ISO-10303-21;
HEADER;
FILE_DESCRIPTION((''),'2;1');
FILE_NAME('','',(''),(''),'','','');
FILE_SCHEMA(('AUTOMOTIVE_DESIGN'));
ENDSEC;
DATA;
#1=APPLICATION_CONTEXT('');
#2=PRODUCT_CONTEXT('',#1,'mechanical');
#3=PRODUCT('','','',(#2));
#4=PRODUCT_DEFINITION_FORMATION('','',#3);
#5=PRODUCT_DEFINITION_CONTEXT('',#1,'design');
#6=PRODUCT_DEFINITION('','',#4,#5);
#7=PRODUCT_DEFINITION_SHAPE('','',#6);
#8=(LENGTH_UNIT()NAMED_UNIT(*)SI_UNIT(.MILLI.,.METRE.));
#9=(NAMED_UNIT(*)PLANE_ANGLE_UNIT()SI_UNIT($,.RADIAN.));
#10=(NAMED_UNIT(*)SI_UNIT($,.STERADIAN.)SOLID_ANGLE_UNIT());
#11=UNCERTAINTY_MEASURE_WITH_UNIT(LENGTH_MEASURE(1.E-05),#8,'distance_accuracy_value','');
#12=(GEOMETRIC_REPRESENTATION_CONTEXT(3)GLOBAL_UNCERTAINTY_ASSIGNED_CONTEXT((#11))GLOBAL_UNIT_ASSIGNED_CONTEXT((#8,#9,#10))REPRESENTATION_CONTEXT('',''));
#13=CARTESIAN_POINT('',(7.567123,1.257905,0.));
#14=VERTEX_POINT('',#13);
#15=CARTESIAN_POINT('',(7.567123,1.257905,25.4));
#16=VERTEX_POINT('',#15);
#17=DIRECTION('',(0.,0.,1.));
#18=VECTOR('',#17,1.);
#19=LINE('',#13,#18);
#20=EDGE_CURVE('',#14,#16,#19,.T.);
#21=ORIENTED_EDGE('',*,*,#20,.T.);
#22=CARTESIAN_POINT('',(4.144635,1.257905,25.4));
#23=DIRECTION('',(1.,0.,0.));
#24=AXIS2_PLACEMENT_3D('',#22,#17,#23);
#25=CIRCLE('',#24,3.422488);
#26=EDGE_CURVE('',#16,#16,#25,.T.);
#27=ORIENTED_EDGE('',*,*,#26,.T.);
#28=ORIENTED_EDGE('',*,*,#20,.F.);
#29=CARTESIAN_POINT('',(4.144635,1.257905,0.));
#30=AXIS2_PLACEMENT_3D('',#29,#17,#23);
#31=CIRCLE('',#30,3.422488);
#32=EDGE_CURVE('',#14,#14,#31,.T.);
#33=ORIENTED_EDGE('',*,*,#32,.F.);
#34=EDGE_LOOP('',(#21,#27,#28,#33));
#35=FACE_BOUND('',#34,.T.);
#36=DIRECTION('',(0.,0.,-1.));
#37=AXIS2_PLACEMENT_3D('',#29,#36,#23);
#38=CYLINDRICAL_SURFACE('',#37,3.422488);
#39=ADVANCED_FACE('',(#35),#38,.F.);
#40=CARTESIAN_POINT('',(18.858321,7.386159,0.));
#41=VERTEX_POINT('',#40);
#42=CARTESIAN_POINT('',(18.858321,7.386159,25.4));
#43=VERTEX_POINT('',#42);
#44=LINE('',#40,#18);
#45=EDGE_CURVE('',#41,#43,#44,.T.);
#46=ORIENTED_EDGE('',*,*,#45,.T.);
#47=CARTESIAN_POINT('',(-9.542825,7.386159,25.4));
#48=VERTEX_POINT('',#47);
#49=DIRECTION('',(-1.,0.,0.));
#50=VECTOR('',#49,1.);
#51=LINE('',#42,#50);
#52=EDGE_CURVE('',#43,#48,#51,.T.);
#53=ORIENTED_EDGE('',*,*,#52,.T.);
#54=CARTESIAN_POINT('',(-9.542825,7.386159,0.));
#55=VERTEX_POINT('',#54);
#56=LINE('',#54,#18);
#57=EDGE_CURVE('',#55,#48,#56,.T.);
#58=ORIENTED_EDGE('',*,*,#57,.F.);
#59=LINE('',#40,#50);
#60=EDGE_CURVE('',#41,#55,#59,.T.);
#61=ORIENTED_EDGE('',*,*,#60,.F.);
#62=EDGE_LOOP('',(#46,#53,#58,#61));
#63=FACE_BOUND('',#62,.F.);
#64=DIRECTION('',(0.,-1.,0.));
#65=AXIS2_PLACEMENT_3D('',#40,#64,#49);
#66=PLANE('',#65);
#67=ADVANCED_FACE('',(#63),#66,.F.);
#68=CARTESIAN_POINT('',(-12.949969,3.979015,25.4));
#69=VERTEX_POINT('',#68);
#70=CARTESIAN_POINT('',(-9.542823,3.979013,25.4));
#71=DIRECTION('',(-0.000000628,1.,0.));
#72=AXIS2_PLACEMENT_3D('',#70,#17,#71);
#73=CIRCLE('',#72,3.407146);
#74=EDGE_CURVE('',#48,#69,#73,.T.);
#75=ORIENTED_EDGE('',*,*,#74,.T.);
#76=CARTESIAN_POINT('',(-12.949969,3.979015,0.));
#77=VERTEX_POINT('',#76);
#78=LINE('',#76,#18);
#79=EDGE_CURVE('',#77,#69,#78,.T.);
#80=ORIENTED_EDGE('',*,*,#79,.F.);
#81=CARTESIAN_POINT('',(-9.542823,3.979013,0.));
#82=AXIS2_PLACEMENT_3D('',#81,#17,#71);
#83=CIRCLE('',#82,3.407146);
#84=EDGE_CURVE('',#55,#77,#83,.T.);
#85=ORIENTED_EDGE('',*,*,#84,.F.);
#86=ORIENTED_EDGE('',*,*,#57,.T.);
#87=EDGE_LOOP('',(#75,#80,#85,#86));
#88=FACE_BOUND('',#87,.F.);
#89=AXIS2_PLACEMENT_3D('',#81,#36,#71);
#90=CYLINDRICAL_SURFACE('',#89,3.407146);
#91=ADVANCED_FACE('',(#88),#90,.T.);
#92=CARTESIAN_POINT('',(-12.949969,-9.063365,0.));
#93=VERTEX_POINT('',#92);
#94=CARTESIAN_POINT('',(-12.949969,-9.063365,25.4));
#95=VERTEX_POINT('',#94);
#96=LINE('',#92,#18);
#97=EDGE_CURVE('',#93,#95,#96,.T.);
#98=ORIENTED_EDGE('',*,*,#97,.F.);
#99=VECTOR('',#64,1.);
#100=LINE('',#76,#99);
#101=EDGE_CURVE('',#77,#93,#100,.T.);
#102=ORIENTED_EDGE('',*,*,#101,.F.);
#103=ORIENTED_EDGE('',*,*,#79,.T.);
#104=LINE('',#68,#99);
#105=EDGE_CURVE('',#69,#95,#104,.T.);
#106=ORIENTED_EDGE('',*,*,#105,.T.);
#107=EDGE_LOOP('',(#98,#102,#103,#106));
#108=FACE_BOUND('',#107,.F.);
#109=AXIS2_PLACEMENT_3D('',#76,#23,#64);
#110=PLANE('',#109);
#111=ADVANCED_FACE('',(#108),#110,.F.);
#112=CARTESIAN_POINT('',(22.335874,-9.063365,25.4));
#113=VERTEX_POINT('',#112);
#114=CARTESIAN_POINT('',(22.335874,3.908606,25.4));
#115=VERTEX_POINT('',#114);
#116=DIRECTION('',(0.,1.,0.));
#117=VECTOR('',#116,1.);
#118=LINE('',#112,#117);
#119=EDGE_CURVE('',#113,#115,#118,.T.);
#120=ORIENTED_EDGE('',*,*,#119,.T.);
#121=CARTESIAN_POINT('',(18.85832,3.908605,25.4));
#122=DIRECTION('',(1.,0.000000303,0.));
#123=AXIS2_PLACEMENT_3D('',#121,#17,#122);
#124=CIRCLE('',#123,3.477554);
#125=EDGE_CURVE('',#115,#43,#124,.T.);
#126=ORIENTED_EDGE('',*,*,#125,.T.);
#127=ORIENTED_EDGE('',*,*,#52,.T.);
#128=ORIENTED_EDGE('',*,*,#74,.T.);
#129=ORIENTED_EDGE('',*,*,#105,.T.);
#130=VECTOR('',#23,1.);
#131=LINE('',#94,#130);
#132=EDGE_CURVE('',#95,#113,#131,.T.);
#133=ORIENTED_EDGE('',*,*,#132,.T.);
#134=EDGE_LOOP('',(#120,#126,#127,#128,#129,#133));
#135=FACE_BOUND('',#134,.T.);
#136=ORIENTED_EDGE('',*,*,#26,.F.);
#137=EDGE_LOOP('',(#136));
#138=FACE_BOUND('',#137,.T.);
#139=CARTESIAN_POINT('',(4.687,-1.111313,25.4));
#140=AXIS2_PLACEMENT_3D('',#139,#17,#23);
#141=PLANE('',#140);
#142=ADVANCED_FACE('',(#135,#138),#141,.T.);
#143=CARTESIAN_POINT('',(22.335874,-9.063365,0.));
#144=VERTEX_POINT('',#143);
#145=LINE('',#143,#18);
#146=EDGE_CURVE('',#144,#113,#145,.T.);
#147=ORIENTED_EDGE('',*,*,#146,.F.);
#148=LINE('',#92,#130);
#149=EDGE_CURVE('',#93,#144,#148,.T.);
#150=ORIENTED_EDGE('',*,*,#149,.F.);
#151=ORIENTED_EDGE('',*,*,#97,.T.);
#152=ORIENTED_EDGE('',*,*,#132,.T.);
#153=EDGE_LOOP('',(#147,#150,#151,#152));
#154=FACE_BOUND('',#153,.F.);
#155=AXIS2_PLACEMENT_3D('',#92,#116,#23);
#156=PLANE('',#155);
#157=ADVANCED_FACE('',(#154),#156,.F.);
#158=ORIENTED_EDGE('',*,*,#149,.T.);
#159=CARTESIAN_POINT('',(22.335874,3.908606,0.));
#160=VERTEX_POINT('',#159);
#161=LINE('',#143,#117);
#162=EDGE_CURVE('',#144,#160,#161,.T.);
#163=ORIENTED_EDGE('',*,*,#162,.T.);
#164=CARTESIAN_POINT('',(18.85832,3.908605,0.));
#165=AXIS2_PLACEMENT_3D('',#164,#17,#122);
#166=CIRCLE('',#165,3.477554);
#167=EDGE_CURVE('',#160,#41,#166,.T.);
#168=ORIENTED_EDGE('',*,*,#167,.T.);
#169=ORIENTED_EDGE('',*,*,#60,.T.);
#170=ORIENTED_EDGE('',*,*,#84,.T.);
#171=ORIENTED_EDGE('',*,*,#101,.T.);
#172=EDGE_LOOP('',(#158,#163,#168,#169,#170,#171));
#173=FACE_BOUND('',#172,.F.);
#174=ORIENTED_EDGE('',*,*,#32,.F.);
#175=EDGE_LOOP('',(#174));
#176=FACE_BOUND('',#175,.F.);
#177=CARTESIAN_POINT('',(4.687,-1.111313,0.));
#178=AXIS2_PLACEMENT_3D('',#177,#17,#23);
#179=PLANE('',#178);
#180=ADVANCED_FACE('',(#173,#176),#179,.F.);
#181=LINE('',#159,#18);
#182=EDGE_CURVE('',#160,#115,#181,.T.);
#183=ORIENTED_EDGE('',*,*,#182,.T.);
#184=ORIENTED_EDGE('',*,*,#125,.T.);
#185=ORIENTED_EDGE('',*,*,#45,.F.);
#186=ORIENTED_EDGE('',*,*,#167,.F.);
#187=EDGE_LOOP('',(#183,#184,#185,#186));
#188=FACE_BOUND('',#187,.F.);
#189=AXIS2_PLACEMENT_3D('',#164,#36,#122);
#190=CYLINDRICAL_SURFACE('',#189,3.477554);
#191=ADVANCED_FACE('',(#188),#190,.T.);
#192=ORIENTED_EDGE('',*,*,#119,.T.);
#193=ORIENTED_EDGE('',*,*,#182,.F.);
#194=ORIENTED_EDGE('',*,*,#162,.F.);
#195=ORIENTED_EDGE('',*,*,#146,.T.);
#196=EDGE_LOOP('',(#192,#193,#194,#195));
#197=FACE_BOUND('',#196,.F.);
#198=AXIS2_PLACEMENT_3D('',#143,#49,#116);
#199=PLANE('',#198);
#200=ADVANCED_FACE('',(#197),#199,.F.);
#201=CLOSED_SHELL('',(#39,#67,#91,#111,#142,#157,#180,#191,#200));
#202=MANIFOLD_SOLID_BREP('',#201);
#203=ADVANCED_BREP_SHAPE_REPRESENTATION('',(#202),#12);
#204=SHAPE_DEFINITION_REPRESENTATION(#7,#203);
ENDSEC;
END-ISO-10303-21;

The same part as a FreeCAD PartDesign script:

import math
import FreeCAD as App
import Part
import Sketcher

V = App.Vector
Q = App.Units.Quantity

doc = App.newDocument("Part")
body = doc.addObject("PartDesign::Body", "Body")

sketch1 = body.newObject("Sketcher::SketchObject", "Sketch")
sketch1.AttachmentSupport = (doc.getObject("XY_Plane"), [""])
sketch1.MapMode = "FlatFace"
sketch1.addGeometry(Part.LineSegment(V(18.9, 7.4, 0), V(-9.5, 7.4, 0)), False)
sketch1.addGeometry(Part.ArcOfCircle(Part.Circle(V(-9.5, 4, 0), V(0, 0, 1), 3.4), math.radians(90), math.radians(180)), False)
sketch1.addGeometry(Part.LineSegment(V(-12.9, 4, 0), V(-12.9, -9.1, 0)), False)
sketch1.addGeometry(Part.LineSegment(V(-12.9, -9.1, 0), V(22.3, -9.1, 0)), False)
sketch1.addGeometry(Part.LineSegment(V(22.3, -9.1, 0), V(22.3, 3.9, 0)), False)
sketch1.addGeometry(Part.ArcOfCircle(Part.Circle(V(18.9, 3.9, 0), V(0, 0, 1), 3.5), math.radians(0), math.radians(90)), False)
sketch1.addGeometry(Part.Circle(V(4.1, 1.3, 0), V(0, 0, 1), 3.4), False)
sketch1.addConstraint(Sketcher.Constraint("Tangent", 0, 2, 1, 1))
sketch1.addConstraint(Sketcher.Constraint("Tangent", 1, 2, 2, 1))
sketch1.addConstraint(Sketcher.Constraint("Coincident", 2, 2, 3, 1))
sketch1.addConstraint(Sketcher.Constraint("Coincident", 3, 2, 4, 1))
sketch1.addConstraint(Sketcher.Constraint("Tangent", 4, 2, 5, 1))
sketch1.addConstraint(Sketcher.Constraint("Tangent", 5, 2, 0, 1))
sketch1.addConstraint(Sketcher.Constraint("Horizontal", 0))
sketch1.addConstraint(Sketcher.Constraint("Vertical", 2))
sketch1.addConstraint(Sketcher.Constraint("Horizontal", 3))
sketch1.addConstraint(Sketcher.Constraint("Vertical", 4))
sketch1.addConstraint(Sketcher.Constraint("Diameter", 6, Q("6.844976 mm")))
sketch1.addConstraint(Sketcher.Constraint("Radius", 1, Q("3.407146 mm")))
sketch1.addConstraint(Sketcher.Constraint("Radius", 5, Q("3.477554 mm")))
sketch1.addConstraint(Sketcher.Constraint("DistanceY", 2, 2, 2, 1, Q("13.04238 mm")))
sketch1.addConstraint(Sketcher.Constraint("DistanceY", 6, 3, 5, 3, Q("2.6507 mm")))
sketch1.addConstraint(Sketcher.Constraint("DistanceX", 0, 2, 3, 2, Q("31.878699 mm")))
sketch1.addConstraint(Sketcher.Constraint("DistanceX", -1, 1, 5, 3, Q("18.85832 mm")))
sketch1.addConstraint(Sketcher.Constraint("DistanceY", -1, 1, 0, 2, Q("7.386159 mm")))
sketch1.addConstraint(Sketcher.Constraint("DistanceX", 0, 2, 6, 3, Q("13.68746 mm")))
pad1 = body.newObject("PartDesign::Pad", "Pad")
pad1.Profile = sketch1
pad1.Length = Q("1 in")

doc.recompute()
